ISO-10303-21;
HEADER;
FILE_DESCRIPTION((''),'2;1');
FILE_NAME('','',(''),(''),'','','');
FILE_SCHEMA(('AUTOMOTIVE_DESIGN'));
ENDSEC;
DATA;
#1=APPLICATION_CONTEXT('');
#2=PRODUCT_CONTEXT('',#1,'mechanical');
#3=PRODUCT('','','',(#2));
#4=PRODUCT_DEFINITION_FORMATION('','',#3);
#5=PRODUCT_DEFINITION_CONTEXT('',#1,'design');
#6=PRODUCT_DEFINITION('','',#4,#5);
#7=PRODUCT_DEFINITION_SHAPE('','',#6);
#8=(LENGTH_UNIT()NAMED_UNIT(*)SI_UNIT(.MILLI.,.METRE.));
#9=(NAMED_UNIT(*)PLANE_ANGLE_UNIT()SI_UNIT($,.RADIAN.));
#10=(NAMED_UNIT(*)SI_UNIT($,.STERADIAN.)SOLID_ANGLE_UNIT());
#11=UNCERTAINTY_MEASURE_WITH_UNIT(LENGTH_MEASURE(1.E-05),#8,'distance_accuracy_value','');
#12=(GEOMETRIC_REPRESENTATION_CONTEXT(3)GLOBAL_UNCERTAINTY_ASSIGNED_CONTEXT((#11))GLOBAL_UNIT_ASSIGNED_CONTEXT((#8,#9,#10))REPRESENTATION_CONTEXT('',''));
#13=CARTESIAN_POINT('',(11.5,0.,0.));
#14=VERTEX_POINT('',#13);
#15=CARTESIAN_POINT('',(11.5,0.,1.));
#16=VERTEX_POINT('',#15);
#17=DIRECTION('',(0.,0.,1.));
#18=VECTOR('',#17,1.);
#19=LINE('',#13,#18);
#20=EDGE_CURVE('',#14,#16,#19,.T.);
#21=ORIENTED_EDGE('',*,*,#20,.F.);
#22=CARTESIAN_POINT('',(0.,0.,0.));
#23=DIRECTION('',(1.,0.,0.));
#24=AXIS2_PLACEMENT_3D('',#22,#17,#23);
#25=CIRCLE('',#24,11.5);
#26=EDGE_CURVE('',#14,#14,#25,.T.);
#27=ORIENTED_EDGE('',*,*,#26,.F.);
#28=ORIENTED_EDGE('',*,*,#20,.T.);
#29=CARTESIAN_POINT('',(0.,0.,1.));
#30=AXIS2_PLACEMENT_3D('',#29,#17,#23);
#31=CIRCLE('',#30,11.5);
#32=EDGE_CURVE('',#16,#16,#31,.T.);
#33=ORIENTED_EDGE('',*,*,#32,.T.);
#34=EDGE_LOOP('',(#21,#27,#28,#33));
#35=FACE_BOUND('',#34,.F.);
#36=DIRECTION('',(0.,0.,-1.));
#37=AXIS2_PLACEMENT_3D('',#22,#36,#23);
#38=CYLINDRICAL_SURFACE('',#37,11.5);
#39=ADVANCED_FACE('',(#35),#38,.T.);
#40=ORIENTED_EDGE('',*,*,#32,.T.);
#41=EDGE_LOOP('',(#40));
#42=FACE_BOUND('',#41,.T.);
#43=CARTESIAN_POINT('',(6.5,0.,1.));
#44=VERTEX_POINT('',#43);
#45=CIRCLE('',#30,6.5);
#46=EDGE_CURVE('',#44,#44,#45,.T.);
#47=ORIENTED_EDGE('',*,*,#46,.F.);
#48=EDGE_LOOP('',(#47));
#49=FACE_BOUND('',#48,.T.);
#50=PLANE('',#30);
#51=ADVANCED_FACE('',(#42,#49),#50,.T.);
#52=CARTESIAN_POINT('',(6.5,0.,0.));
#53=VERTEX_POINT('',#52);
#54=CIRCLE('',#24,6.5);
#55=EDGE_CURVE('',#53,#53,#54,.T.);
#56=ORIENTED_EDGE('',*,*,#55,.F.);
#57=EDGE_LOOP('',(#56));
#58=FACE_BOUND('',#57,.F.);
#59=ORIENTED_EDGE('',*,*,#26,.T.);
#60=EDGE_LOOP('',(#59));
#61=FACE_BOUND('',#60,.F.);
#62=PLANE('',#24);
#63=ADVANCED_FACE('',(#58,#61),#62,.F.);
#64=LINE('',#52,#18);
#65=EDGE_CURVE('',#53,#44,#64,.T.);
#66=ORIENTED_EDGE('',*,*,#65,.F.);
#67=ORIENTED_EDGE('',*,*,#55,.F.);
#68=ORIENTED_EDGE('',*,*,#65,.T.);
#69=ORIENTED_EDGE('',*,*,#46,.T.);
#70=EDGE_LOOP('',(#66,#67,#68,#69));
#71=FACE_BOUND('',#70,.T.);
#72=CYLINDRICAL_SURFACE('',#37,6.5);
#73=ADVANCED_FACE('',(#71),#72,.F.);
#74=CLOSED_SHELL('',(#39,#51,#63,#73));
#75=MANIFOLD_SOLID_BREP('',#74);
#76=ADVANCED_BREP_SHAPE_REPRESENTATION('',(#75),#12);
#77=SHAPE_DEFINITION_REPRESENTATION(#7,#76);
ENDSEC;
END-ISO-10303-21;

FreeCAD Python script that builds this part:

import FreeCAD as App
import Part
import Sketcher
from FreeCAD import Vector
Q = App.Units.Quantity

doc = App.newDocument("Part")
body = doc.addObject("PartDesign::Body", "Body")

# Sketch on XY plane
sketch1 = body.newObject("Sketcher::SketchObject", "Sketch")
sketch1.AttachmentSupport = (doc.getObject("XY_Plane"), [""])
sketch1.MapMode = "FlatFace"
sketch1.addGeometry([
    Part.Circle(Vector(0, 0, 0), Vector(0, 0, 1), 12),
    Part.Circle(Vector(0, 0, 0), Vector(0, 0, 1), 6),
], False)
sketch1.addConstraint([
    Sketcher.Constraint("Coincident", 0, 3, -1, 1),
    Sketcher.Constraint("Coincident", 1, 3, -1, 1),
    Sketcher.Constraint("Diameter", 0, Q("23 mm")),
    Sketcher.Constraint("Diameter", 1, Q("13 mm")),
])
pad1 = body.newObject("PartDesign::Pad", "Pad")
pad1.Profile = sketch1
pad1.Length = 1

doc.recompute()
